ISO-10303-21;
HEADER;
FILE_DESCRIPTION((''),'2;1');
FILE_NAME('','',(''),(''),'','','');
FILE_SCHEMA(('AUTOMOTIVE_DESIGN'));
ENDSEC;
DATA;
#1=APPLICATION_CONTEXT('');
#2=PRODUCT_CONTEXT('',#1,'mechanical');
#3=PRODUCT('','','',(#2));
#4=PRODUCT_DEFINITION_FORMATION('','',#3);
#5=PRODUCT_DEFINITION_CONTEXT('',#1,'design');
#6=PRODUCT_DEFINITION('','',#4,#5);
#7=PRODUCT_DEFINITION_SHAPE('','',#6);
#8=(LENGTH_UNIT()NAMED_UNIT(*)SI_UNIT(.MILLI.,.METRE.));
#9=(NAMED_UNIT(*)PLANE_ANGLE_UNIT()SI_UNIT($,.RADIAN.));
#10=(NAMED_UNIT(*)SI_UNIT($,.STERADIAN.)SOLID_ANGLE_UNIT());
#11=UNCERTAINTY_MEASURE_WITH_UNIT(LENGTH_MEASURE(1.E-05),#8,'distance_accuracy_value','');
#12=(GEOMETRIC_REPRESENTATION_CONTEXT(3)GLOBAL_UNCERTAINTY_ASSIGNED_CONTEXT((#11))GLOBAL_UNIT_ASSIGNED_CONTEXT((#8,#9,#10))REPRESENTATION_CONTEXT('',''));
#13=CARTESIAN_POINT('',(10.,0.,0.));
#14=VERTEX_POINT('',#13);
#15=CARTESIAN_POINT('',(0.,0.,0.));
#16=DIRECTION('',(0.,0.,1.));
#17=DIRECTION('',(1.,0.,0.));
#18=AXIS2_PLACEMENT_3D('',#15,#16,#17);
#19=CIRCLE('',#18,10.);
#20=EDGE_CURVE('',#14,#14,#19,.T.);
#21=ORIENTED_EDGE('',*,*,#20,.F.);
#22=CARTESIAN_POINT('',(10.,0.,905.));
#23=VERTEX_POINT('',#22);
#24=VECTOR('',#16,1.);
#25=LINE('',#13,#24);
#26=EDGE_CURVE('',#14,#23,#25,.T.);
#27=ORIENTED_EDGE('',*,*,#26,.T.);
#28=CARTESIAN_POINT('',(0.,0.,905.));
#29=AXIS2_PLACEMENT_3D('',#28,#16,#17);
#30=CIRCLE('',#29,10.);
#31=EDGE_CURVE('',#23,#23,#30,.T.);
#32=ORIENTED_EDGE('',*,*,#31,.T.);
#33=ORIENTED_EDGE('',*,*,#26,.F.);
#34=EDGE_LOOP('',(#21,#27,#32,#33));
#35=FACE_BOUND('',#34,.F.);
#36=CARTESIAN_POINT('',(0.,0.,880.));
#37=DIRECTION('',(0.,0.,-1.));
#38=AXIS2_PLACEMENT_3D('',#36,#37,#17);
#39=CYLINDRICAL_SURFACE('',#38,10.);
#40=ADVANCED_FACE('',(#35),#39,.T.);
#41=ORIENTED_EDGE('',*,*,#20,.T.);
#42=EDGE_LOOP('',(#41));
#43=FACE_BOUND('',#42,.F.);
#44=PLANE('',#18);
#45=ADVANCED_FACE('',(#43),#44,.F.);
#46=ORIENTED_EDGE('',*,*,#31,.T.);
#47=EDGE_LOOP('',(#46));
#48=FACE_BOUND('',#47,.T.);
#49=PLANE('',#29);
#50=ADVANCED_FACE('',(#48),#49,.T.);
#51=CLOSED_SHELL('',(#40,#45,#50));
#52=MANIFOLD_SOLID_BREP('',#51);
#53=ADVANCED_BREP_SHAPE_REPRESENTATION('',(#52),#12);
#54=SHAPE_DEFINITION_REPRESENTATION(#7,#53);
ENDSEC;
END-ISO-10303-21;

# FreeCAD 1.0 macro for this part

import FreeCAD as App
import Part
import Sketcher
Q = App.Units.Quantity

doc = App.newDocument("Part")
body = doc.addObject("PartDesign::Body", "Body")

# Sketch on XY plane
sketch1 = body.newObject("Sketcher::SketchObject", "Sketch")
sketch1.AttachmentSupport = (doc.getObject("XY_Plane"), [""])
sketch1.MapMode = "FlatFace"
sketch1.addGeometry(Part.Circle(App.Vector(0, 0, 0), App.Vector(0, 0, 1), 10), False)
sketch1.addConstraint([
    Sketcher.Constraint("Coincident", 0, 3, -1, 1),
    Sketcher.Constraint("Diameter", 0, Q("20 mm")),
])
pad1 = body.newObject("PartDesign::Pad", "Pad")
pad1.Profile = sketch1
pad1.Length = 880

# Sketch on XY plane
sketch2 = body.newObject("Sketcher::SketchObject", "Sketch001")
sketch2.AttachmentSupport = (doc.getObject("XY_Plane"), [""])
sketch2.MapMode = "FlatFace"
sketch2.AttachmentOffset = App.Placement(App.Vector(0, 0, 880), App.Rotation())
sketch2.addGeometry(Part.Circle(App.Vector(0, 0, 0), App.Vector(0, 0, 1), 10), False)
sketch2.addConstraint([
    Sketcher.Constraint("Coincident", 0, 3, -1, 1),
    Sketcher.Constraint("Diameter", 0, Q("20 mm")),
])
pad2 = body.newObject("PartDesign::Pad", "Pad001")
pad2.Profile = sketch2
pad2.Length = 25

doc.recompute()
